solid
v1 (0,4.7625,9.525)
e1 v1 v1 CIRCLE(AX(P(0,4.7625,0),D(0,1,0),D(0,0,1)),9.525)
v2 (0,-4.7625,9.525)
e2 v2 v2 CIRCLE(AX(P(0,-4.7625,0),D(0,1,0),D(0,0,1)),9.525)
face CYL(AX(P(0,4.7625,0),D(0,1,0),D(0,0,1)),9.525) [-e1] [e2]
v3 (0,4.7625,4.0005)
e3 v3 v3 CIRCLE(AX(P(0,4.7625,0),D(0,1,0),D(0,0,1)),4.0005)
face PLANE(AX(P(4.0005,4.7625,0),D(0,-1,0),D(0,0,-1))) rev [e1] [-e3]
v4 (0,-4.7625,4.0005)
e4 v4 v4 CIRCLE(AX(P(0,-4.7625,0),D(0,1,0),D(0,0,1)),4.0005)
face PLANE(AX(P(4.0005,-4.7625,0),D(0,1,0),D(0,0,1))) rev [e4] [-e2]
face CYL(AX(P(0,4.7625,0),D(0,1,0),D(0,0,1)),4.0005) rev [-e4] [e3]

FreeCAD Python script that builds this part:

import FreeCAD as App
import Part
import Sketcher
Q = App.Units.Quantity


def add_polygon(sketch, points):
    """Adds a closed chain of lines whose ends are joined by coincident constraints."""
    first, n = sketch.GeometryCount, len(points)
    for a, b in zip(points, points[1:] + points[:1]):
        sketch.addGeometry(Part.LineSegment(App.Vector(*a, 0), App.Vector(*b, 0)), False)
    for i in range(n):
        sketch.addConstraint(Sketcher.Constraint("Coincident", first + i, 2, first + (i + 1) % n, 1))

doc = App.newDocument("Part")
body = doc.addObject("PartDesign::Body", "Body")

# Sketch on XY plane
sketch1 = body.newObject("Sketcher::SketchObject", "Sketch")
sketch1.AttachmentSupport = (doc.getObject("XY_Plane"), [""])
sketch1.MapMode = "FlatFace"
add_polygon(sketch1, [(4, 5), (4, -5), (10, -5), (10, 5)])  # lines 0-3
sketch1.addConstraint(Sketcher.Constraint("Vertical", 0))
sketch1.addConstraint(Sketcher.Constraint("Horizontal", 1))
sketch1.addConstraint(Sketcher.Constraint("Vertical", 2))
sketch1.addConstraint(Sketcher.Constraint("Horizontal", 3))
sketch1.addConstraint(Sketcher.Constraint("DistanceY", 0, 2, 0, 1, Q("0.375 in")))
sketch1.addConstraint(Sketcher.Constraint("DistanceX", 1, 1, 1, 2, Q("0.2175 in")))
sketch1.addConstraint(Sketcher.Constraint("DistanceY", 0, 2, -1, 1, Q("0.1875 in")))
sketch1.addConstraint(Sketcher.Constraint("DistanceX", -1, 1, 1, 2, Q("0.375 in")))
revolution = body.newObject("PartDesign::Revolution", "Revolution")
revolution.Profile = sketch1
revolution.ReferenceAxis = (sketch1, ["V_Axis"])
revolution.Angle = 360

doc.recompute()
